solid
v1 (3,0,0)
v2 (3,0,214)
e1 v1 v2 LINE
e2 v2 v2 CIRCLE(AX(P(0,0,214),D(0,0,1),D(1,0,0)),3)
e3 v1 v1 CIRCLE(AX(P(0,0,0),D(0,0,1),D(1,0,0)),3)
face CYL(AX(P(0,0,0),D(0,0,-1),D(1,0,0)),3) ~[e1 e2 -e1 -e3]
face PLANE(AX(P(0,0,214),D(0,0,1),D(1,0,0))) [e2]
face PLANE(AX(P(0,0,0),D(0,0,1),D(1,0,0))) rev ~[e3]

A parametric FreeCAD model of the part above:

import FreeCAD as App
import Part
import Sketcher
from FreeCAD import Vector
Q = App.Units.Quantity

doc = App.newDocument("Part")
body = doc.addObject("PartDesign::Body", "Body")

sketch1 = body.newObject("Sketcher::SketchObject", "Sketch")
sketch1.AttachmentSupport = (doc.getObject("XY_Plane"), [""])
sketch1.MapMode = "FlatFace"
sketch1.addGeometry(Part.Circle(Vector(0, 0, 0), Vector(0, 0, 1), 3), False)
sketch1.addConstraint([
    Sketcher.Constraint("Coincident", 0, 3, -1, 1),
    Sketcher.Constraint("Diameter", 0, Q("6 mm")),
])
pad1 = body.newObject("PartDesign::Pad", "Pad")
pad1.Profile = sketch1
pad1.Length = 214

doc.recompute()
